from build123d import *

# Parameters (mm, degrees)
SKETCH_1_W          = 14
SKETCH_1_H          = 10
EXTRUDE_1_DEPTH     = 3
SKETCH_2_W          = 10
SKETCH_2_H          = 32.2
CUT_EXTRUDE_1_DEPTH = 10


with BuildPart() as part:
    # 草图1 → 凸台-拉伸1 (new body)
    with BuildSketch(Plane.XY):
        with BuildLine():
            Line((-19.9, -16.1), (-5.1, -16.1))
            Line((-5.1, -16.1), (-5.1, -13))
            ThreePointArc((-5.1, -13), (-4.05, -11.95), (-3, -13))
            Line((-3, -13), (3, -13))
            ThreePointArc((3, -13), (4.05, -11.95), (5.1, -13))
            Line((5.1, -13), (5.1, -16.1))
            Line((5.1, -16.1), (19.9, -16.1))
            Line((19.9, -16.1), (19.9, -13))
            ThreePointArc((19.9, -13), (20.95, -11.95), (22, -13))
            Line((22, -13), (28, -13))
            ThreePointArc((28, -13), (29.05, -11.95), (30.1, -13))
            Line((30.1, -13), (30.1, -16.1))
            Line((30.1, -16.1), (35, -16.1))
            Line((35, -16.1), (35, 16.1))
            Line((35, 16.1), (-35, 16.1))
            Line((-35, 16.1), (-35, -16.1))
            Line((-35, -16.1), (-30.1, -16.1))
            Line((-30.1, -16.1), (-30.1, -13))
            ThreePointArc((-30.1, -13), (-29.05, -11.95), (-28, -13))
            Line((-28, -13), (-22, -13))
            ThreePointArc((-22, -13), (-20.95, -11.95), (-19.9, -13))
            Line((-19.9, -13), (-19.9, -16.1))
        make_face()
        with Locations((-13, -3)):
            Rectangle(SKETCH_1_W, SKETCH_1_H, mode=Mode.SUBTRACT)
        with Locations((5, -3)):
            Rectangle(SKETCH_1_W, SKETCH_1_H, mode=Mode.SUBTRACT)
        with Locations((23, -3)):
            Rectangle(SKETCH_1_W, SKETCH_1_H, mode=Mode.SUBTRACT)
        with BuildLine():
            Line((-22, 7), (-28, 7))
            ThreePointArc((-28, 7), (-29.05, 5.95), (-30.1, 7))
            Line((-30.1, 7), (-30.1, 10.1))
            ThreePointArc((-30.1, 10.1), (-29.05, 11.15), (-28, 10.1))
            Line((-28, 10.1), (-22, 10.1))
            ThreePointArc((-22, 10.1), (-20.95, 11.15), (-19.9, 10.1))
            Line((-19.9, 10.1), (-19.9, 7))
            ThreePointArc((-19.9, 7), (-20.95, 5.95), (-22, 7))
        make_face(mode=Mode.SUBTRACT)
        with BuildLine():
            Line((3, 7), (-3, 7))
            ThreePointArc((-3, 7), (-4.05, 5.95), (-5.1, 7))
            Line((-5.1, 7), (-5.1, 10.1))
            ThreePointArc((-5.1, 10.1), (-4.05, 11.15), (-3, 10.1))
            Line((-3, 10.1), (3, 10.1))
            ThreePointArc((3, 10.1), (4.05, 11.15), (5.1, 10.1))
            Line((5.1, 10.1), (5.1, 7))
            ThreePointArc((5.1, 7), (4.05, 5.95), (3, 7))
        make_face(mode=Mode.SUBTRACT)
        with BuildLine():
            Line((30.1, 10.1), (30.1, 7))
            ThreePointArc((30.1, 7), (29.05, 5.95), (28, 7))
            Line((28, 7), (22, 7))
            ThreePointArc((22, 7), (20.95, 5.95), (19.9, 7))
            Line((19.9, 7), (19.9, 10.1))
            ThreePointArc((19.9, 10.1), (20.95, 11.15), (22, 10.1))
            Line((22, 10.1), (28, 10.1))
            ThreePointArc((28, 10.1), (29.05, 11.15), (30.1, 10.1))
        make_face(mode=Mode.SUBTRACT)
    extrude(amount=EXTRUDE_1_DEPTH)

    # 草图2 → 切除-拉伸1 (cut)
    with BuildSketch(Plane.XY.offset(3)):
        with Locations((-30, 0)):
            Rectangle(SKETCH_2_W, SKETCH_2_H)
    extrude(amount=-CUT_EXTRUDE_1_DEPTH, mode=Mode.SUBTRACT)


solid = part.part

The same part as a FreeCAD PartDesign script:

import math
import FreeCAD as App
import Part
import Sketcher
from FreeCAD import Vector


def add_polygon(sketch, points):
    """Adds a closed chain of lines whose ends are joined by coincident constraints."""
    first, n = sketch.GeometryCount, len(points)
    for a, b in zip(points, points[1:] + points[:1]):
        sketch.addGeometry(Part.LineSegment(App.Vector(*a, 0), App.Vector(*b, 0)), False)
    for i in range(n):
        sketch.addConstraint(Sketcher.Constraint("Coincident", first + i, 2, first + (i + 1) % n, 1))

doc = App.newDocument("Part")
params = doc.addObject("Spreadsheet::Sheet", "Params")
for row, (alias, value) in enumerate([
    ("sketch1_width", "6 mm"),
    ("sketch1_width2", "70 mm"),
    ("sketch1_width3", "14 mm"),
    ("sketch1_height", "10 mm"),
    ("sketch1_radius", "1.05 mm"),
    ("pad1_length", "3 mm"),
    ("sketch2_width", "10 mm"),
    ("sketch2_height", "32.2 mm"),
    ("pocket1_length", "10 mm"),
], start=1):
    params.set(f"A{row}", alias)
    params.set(f"B{row}", "=" + value)
    params.setAlias(f"B{row}", alias)

body = doc.addObject("PartDesign::Body", "Body")

# Sketch on XY plane
sketch1 = doc.addObject("Sketcher::SketchObject", "Sketch")
body.addObject(sketch1)
sketch1.AttachmentSupport = (doc.XY_Plane, [""])
sketch1.MapMode = "FlatFace"
sketch1.addGeometry(Part.LineSegment(Vector(-19.9, -16.1, 0), Vector(-5.1, -16.1, 0)), False)  # 0
sketch1.addGeometry(Part.LineSegment(Vector(-5.1, -16.1, 0), Vector(-5.1, -13, 0)), False)  # 1
sketch1.addGeometry(Part.ArcOfCircle(Part.Circle(Vector(-4, -13, 0), Vector(0, 0, 1), 1.1), math.radians(0), math.radians(180)), False)  # 2
sketch1.addGeometry(Part.LineSegment(Vector(-3, -13, 0), Vector(3, -13, 0)), False)  # 3
sketch1.addGeometry(Part.ArcOfCircle(Part.Circle(Vector(4, -13, 0), Vector(0, 0, 1), 1.1), math.radians(0), math.radians(180)), False)  # 4
sketch1.addGeometry(Part.LineSegment(Vector(5.1, -13, 0), Vector(5.1, -16.1, 0)), False)  # 5
sketch1.addGeometry(Part.LineSegment(Vector(5.1, -16.1, 0), Vector(19.9, -16.1, 0)), False)  # 6
sketch1.addGeometry(Part.LineSegment(Vector(19.9, -16.1, 0), Vector(19.9, -13, 0)), False)  # 7
sketch1.addGeometry(Part.ArcOfCircle(Part.Circle(Vector(20.9, -13, 0), Vector(0, 0, 1), 1.1), math.radians(0), math.radians(180)), False)  # 8
sketch1.addGeometry(Part.LineSegment(Vector(22, -13, 0), Vector(28, -13, 0)), False)  # 9
sketch1.addGeometry(Part.ArcOfCircle(Part.Circle(Vector(29.1, -13, 0), Vector(0, 0, 1), 1.1), math.radians(0), math.radians(180)), False)  # 10
sketch1.addGeometry(Part.LineSegment(Vector(30.1, -13, 0), Vector(30.1, -16.1, 0)), False)  # 11
sketch1.addGeometry(Part.LineSegment(Vector(30.1, -16.1, 0), Vector(35, -16.1, 0)), False)  # 12
sketch1.addGeometry(Part.LineSegment(Vector(35, -16.1, 0), Vector(35, 16.1, 0)), False)  # 13
sketch1.addGeometry(Part.LineSegment(Vector(35, 16.1, 0), Vector(-35, 16.1, 0)), False)  # 14
sketch1.addGeometry(Part.LineSegment(Vector(-35, 16.1, 0), Vector(-35, -16.1, 0)), False)  # 15
sketch1.addGeometry(Part.LineSegment(Vector(-35, -16.1, 0), Vector(-30.1, -16.1, 0)), False)  # 16
sketch1.addGeometry(Part.LineSegment(Vector(-30.1, -16.1, 0), Vector(-30.1, -13, 0)), False)  # 17
sketch1.addGeometry(Part.ArcOfCircle(Part.Circle(Vector(-29.1, -13, 0), Vector(0, 0, 1), 1.1), math.radians(0), math.radians(180)), False)  # 18
sketch1.addGeometry(Part.LineSegment(Vector(-28, -13, 0), Vector(-22, -13, 0)), False)  # 19
sketch1.addGeometry(Part.ArcOfCircle(Part.Circle(Vector(-20.9, -13, 0), Vector(0, 0, 1), 1.1), math.radians(0), math.radians(180)), False)  # 20
sketch1.addGeometry(Part.LineSegment(Vector(-19.9, -13, 0), Vector(-19.9, -16.1, 0)), False)  # 21
add_polygon(sketch1, [(-6, -8), (-20, -8), (-20, 2), (-6, 2)])  # lines 22-25
add_polygon(sketch1, [(12, -8), (-2, -8), (-2, 2), (12, 2)])  # lines 26-29
add_polygon(sketch1, [(30, -8), (16, -8), (16, 2), (30, 2)])  # lines 30-33
sketch1.addGeometry(Part.ArcOfCircle(Part.Circle(Vector(-20.9, 7, 0), Vector(0, 0, 1), 1.1), math.radians(180), math.radians(360)), False)  # 34
sketch1.addGeometry(Part.LineSegment(Vector(-22, 7, 0), Vector(-28, 7, 0)), False)  # 35
sketch1.addGeometry(Part.ArcOfCircle(Part.Circle(Vector(-29.1, 7, 0), Vector(0, 0, 1), 1.1), math.radians(180), math.radians(360)), False)  # 36
sketch1.addGeometry(Part.LineSegment(Vector(-30.1, 7, 0), Vector(-30.1, 10.1, 0)), False)  # 37
sketch1.addGeometry(Part.ArcOfCircle(Part.Circle(Vector(-29.1, 10.1, 0), Vector(0, 0, 1), 1.1), math.radians(0), math.radians(180)), False)  # 38
sketch1.addGeometry(Part.LineSegment(Vector(-28, 10.1, 0), Vector(-22, 10.1, 0)), False)  # 39
sketch1.addGeometry(Part.ArcOfCircle(Part.Circle(Vector(-20.9, 10.1, 0), Vector(0, 0, 1), 1.1), math.radians(0), math.radians(180)), False)  # 40
sketch1.addGeometry(Part.LineSegment(Vector(-19.9, 10.1, 0), Vector(-19.9, 7, 0)), False)  # 41
sketch1.addGeometry(Part.ArcOfCircle(Part.Circle(Vector(4, 7, 0), Vector(0, 0, 1), 1.1), math.radians(180), math.radians(360)), False)  # 42
sketch1.addGeometry(Part.LineSegment(Vector(3, 7, 0), Vector(-3, 7, 0)), False)  # 43
sketch1.addGeometry(Part.ArcOfCircle(Part.Circle(Vector(-4, 7, 0), Vector(0, 0, 1), 1.1), math.radians(180), math.radians(360)), False)  # 44
sketch1.addGeometry(Part.LineSegment(Vector(-5.1, 7, 0), Vector(-5.1, 10.1, 0)), False)  # 45
sketch1.addGeometry(Part.ArcOfCircle(Part.Circle(Vector(-4, 10.1, 0), Vector(0, 0, 1), 1.1), math.radians(0), math.radians(180)), False)  # 46
sketch1.addGeometry(Part.LineSegment(Vector(-3, 10.1, 0), Vector(3, 10.1, 0)), False)  # 47
sketch1.addGeometry(Part.ArcOfCircle(Part.Circle(Vector(4, 10.1, 0), Vector(0, 0, 1), 1.1), math.radians(0), math.radians(180)), False)  # 48
sketch1.addGeometry(Part.LineSegment(Vector(5.1, 10.1, 0), Vector(5.1, 7, 0)), False)  # 49
sketch1.addGeometry(Part.ArcOfCircle(Part.Circle(Vector(29.1, 10.1, 0), Vector(0, 0, 1), 1.1), math.radians(0), math.radians(180)), False)  # 50
sketch1.addGeometry(Part.LineSegment(Vector(30.1, 10.1, 0), Vector(30.1, 7, 0)), False)  # 51
sketch1.addGeometry(Part.ArcOfCircle(Part.Circle(Vector(29.1, 7, 0), Vector(0, 0, 1), 1.1), math.radians(180), math.radians(360)), False)  # 52
sketch1.addGeometry(Part.LineSegment(Vector(28, 7, 0), Vector(22, 7, 0)), False)  # 53
sketch1.addGeometry(Part.ArcOfCircle(Part.Circle(Vector(20.9, 7, 0), Vector(0, 0, 1), 1.1), math.radians(180), math.radians(360)), False)  # 54
sketch1.addGeometry(Part.LineSegment(Vector(19.9, 7, 0), Vector(19.9, 10.1, 0)), False)  # 55
sketch1.addGeometry(Part.ArcOfCircle(Part.Circle(Vector(20.9, 10.1, 0), Vector(0, 0, 1), 1.1), math.radians(0), math.radians(180)), False)  # 56
sketch1.addGeometry(Part.LineSegment(Vector(22, 10.1, 0), Vector(28, 10.1, 0)), False)  # 57
sketch1.addConstraint(Sketcher.Constraint("Coincident", 0, 2, 1, 1))
sketch1.addConstraint(Sketcher.Constraint("Tangent", 1, 2, 2, 2))
sketch1.addConstraint(Sketcher.Constraint("Coincident", 2, 1, 3, 1))
sketch1.addConstraint(Sketcher.Constraint("Coincident", 3, 2, 4, 2))
sketch1.addConstraint(Sketcher.Constraint("Tangent", 4, 1, 5, 1))
sketch1.addConstraint(Sketcher.Constraint("Coincident", 5, 2, 6, 1))
sketch1.addConstraint(Sketcher.Constraint("Coincident", 6, 2, 7, 1))
sketch1.addConstraint(Sketcher.Constraint("Tangent", 7, 2, 8, 2))
sketch1.addConstraint(Sketcher.Constraint("Coincident", 8, 1, 9, 1))
sketch1.addConstraint(Sketcher.Constraint("Coincident", 9, 2, 10, 2))
sketch1.addConstraint(Sketcher.Constraint("Tangent", 10, 1, 11, 1))
sketch1.addConstraint(Sketcher.Constraint("Coincident", 11, 2, 12, 1))
sketch1.addConstraint(Sketcher.Constraint("Coincident", 12, 2, 13, 1))
sketch1.addConstraint(Sketcher.Constraint("Coincident", 13, 2, 14, 1))
sketch1.addConstraint(Sketcher.Constraint("Coincident", 14, 2, 15, 1))
sketch1.addConstraint(Sketcher.Constraint("Coincident", 15, 2, 16, 1))
sketch1.addConstraint(Sketcher.Constraint("Coincident", 16, 2, 17, 1))
sketch1.addConstraint(Sketcher.Constraint("Tangent", 17, 2, 18, 2))
sketch1.addConstraint(Sketcher.Constraint("Coincident", 18, 1, 19, 1))
sketch1.addConstraint(Sketcher.Constraint("Coincident", 19, 2, 20, 2))
sketch1.addConstraint(Sketcher.Constraint("Tangent", 20, 1, 21, 1))
sketch1.addConstraint(Sketcher.Constraint("Coincident", 21, 2, 0, 1))
sketch1.addConstraint(Sketcher.Constraint("Coincident", 34, 1, 35, 1))
sketch1.addConstraint(Sketcher.Constraint("Coincident", 35, 2, 36, 2))
sketch1.addConstraint(Sketcher.Constraint("Tangent", 36, 1, 37, 1))
sketch1.addConstraint(Sketcher.Constraint("Tangent", 37, 2, 38, 2))
sketch1.addConstraint(Sketcher.Constraint("Coincident", 38, 1, 39, 1))
sketch1.addConstraint(Sketcher.Constraint("Coincident", 39, 2, 40, 2))
sketch1.addConstraint(Sketcher.Constraint("Tangent", 40, 1, 41, 1))
sketch1.addConstraint(Sketcher.Constraint("Tangent", 41, 2, 34, 2))
sketch1.addConstraint(Sketcher.Constraint("Coincident", 42, 1, 43, 1))
sketch1.addConstraint(Sketcher.Constraint("Coincident", 43, 2, 44, 2))
sketch1.addConstraint(Sketcher.Constraint("Tangent", 44, 1, 45, 1))
sketch1.addConstraint(Sketcher.Constraint("Tangent", 45, 2, 46, 2))
sketch1.addConstraint(Sketcher.Constraint("Coincident", 46, 1, 47, 1))
sketch1.addConstraint(Sketcher.Constraint("Coincident", 47, 2, 48, 2))
sketch1.addConstraint(Sketcher.Constraint("Tangent", 48, 1, 49, 1))
sketch1.addConstraint(Sketcher.Constraint("Tangent", 49, 2, 42, 2))
sketch1.addConstraint(Sketcher.Constraint("Tangent", 50, 1, 51, 1))
sketch1.addConstraint(Sketcher.Constraint("Tangent", 51, 2, 52, 2))
sketch1.addConstraint(Sketcher.Constraint("Coincident", 52, 1, 53, 1))
sketch1.addConstraint(Sketcher.Constraint("Coincident", 53, 2, 54, 2))
sketch1.addConstraint(Sketcher.Constraint("Tangent", 54, 1, 55, 1))
sketch1.addConstraint(Sketcher.Constraint("Tangent", 55, 2, 56, 2))
sketch1.addConstraint(Sketcher.Constraint("Coincident", 56, 1, 57, 1))
sketch1.addConstraint(Sketcher.Constraint("Coincident", 57, 2, 50, 2))
sketch1.addConstraint(Sketcher.Constraint("Horizontal", 0))
sketch1.addConstraint(Sketcher.Constraint("Vertical", 1))
sketch1.addConstraint(Sketcher.Constraint("Horizontal", 3))
sketch1.addConstraint(Sketcher.Constraint("Vertical", 5))
sketch1.addConstraint(Sketcher.Constraint("Horizontal", 6))
sketch1.addConstraint(Sketcher.Constraint("Vertical", 7))
sketch1.addConstraint(Sketcher.Constraint("Horizontal", 9))
sketch1.addConstraint(Sketcher.Constraint("Vertical", 11))
sketch1.addConstraint(Sketcher.Constraint("Horizontal", 12))
sketch1.addConstraint(Sketcher.Constraint("Vertical", 13))
sketch1.addConstraint(Sketcher.Constraint("Horizontal", 14))
sketch1.addConstraint(Sketcher.Constraint("Vertical", 15))
sketch1.addConstraint(Sketcher.Constraint("Horizontal", 16))
sketch1.addConstraint(Sketcher.Constraint("Vertical", 17))
sketch1.addConstraint(Sketcher.Constraint("Horizontal", 19))
sketch1.addConstraint(Sketcher.Constraint("Vertical", 21))
sketch1.addConstraint(Sketcher.Constraint("Horizontal", 22))
sketch1.addConstraint(Sketcher.Constraint("Vertical", 23))
sketch1.addConstraint(Sketcher.Constraint("Horizontal", 24))
sketch1.addConstraint(Sketcher.Constraint("Vertical", 25))
sketch1.addConstraint(Sketcher.Constraint("Horizontal", 26))
sketch1.addConstraint(Sketcher.Constraint("Vertical", 27))
sketch1.addConstraint(Sketcher.Constraint("Horizontal", 28))
sketch1.addConstraint(Sketcher.Constraint("Vertical", 29))
sketch1.addConstraint(Sketcher.Constraint("Horizontal", 30))
sketch1.addConstraint(Sketcher.Constraint("Vertical", 31))
sketch1.addConstraint(Sketcher.Constraint("Horizontal", 32))
sketch1.addConstraint(Sketcher.Constraint("Vertical", 33))
sketch1.addConstraint(Sketcher.Constraint("Horizontal", 35))
sketch1.addConstraint(Sketcher.Constraint("Vertical", 37))
sketch1.addConstraint(Sketcher.Constraint("Horizontal", 39))
sketch1.addConstraint(Sketcher.Constraint("Vertical", 41))
sketch1.addConstraint(Sketcher.Constraint("Horizontal", 43))
sketch1.addConstraint(Sketcher.Constraint("Vertical", 45))
sketch1.addConstraint(Sketcher.Constraint("Horizontal", 47))
sketch1.addConstraint(Sketcher.Constraint("Vertical", 49))
sketch1.addConstraint(Sketcher.Constraint("Vertical", 51))
sketch1.addConstraint(Sketcher.Constraint("Horizontal", 53))
sketch1.addConstraint(Sketcher.Constraint("Vertical", 55))
sketch1.addConstraint(Sketcher.Constraint("Horizontal", 57))
sketch1.addConstraint(Sketcher.Constraint("Equal", 2, 4))
sketch1.addConstraint(Sketcher.Constraint("Equal", 4, 8))
sketch1.addConstraint(Sketcher.Constraint("Equal", 8, 10))
sketch1.addConstraint(Sketcher.Constraint("Equal", 10, 18))
sketch1.addConstraint(Sketcher.Constraint("Equal", 18, 20))
sketch1.addConstraint(Sketcher.Constraint("Equal", 20, 34))
sketch1.addConstraint(Sketcher.Constraint("Equal", 34, 36))
sketch1.addConstraint(Sketcher.Constraint("Equal", 36, 38))
sketch1.addConstraint(Sketcher.Constraint("Equal", 38, 40))
sketch1.addConstraint(Sketcher.Constraint("Equal", 40, 42))
sketch1.addConstraint(Sketcher.Constraint("Equal", 42, 44))
sketch1.addConstraint(Sketcher.Constraint("Equal", 44, 46))
sketch1.addConstraint(Sketcher.Constraint("Equal", 46, 48))
sketch1.addConstraint(Sketcher.Constraint("Equal", 48, 50))
sketch1.addConstraint(Sketcher.Constraint("Equal", 50, 52))
sketch1.addConstraint(Sketcher.Constraint("Equal", 52, 54))
sketch1.addConstraint(Sketcher.Constraint("Equal", 54, 56))
sketch1.addConstraint(Sketcher.Constraint("Symmetric", 12, 2, 14, 2, -1, 1))
sketch1.addConstraint(Sketcher.Constraint("Symmetric", 2, 3, 4, 3, -2))
sketch1.addConstraint(Sketcher.Constraint("Symmetric", 10, 3, 18, 3, -2))
sketch1.addConstraint(Sketcher.Constraint("Symmetric", 8, 3, 20, 3, -2))
sketch1.addConstraint(Sketcher.Constraint("Symmetric", 42, 3, 44, 3, -2))
sketch1.addConstraint(Sketcher.Constraint("Symmetric", 38, 3, 50, 3, -2))
sketch1.addConstraint(Sketcher.Constraint("Symmetric", 34, 3, 54, 3, -2))
sketch1.addConstraint(Sketcher.Constraint("Horizontal", 4, 3, 8, 3))
sketch1.addConstraint(Sketcher.Constraint("Horizontal", 8, 3, 10, 3))
sketch1.addConstraint(Sketcher.Constraint("Horizontal", 34, 3, 36, 3))
sketch1.addConstraint(Sketcher.Constraint("Horizontal", 38, 3, 40, 3))
sketch1.addConstraint(Sketcher.Constraint("Horizontal", 36, 3, 42, 3))
sketch1.addConstraint(Sketcher.Constraint("Horizontal", 40, 3, 46, 3))
sketch1.addConstraint(Sketcher.Constraint("Horizontal", 46, 3, 48, 3))
sketch1.addConstraint(Sketcher.Constraint("Horizontal", 44, 3, 52, 3))
sketch1.addConstraint(Sketcher.Constraint("Horizontal", 50, 3, 56, 3))
sketch1.addConstraint(Sketcher.Constraint("Horizontal", 1, 2, 2, 1))
sketch1.addConstraint(Sketcher.Constraint("Horizontal", 0, 2, 5, 2))
sketch1.addConstraint(Sketcher.Constraint("Horizontal", 7, 2, 8, 1))
sketch1.addConstraint(Sketcher.Constraint("Horizontal", 6, 2, 11, 2))
sketch1.addConstraint(Sketcher.Constraint("Horizontal", 12, 2, 15, 2))
sketch1.addConstraint(Sketcher.Constraint("Horizontal", 17, 2, 18, 1))
sketch1.addConstraint(Sketcher.Constraint("Horizontal", 25, 2, 26, 2))
sketch1.addConstraint(Sketcher.Constraint("Horizontal", 24, 2, 27, 2))
sketch1.addConstraint(Sketcher.Constraint("Horizontal", 29, 2, 30, 2))
sketch1.addConstraint(Sketcher.Constraint("Horizontal", 28, 2, 31, 2))
sketch1.addConstraint(Sketcher.Constraint("Horizontal", 54, 3, 34, 1))
sketch1.addConstraint(Sketcher.Constraint("Horizontal", 37, 2, 38, 1))
sketch1.addConstraint(Sketcher.Constraint("Horizontal", 41, 2, 42, 1))
sketch1.addConstraint(Sketcher.Constraint("Horizontal", 45, 2, 46, 1))
sketch1.addConstraint(Sketcher.Constraint("Horizontal", 51, 2, 52, 1))
sketch1.addConstraint(Sketcher.Constraint("Horizontal", 55, 2, 56, 1))
sketch1.addConstraint(Sketcher.Constraint("Vertical", 20, 3, 34, 3))
sketch1.addConstraint(Sketcher.Constraint("Vertical", 18, 3, 36, 3))
sketch1.addConstraint(Sketcher.Constraint("Vertical", 4, 3, 42, 3))
sketch1.addConstraint(Sketcher.Constraint("Equal", 3, 9))
sketch1.addConstraint(Sketcher.Constraint("Equal", 24, 26))
sketch1.addConstraint(Sketcher.Constraint("Equal", 28, 30))
sketch1.addConstraint(Sketcher.Constraint("Equal", 21, 37))
sketch1.addConstraint(Sketcher.Constraint("DistanceX", 3, 1, 3, 2, 6.0))
sketch1.addConstraint(Sketcher.Constraint("DistanceX", 14, 2, 14, 1, 70.0))
sketch1.addConstraint(Sketcher.Constraint("DistanceX", 22, 2, 22, 1, 14.0))
sketch1.addConstraint(Sketcher.Constraint("DistanceY", 23, 1, 23, 2, 10.0))
sketch1.addConstraint(Sketcher.Constraint("Radius", 2, 1.05))
sketch1.addConstraint(Sketcher.Constraint("DistanceX", 0, 1, 0, 2, 14.8))
sketch1.addConstraint(Sketcher.Constraint("DistanceY", 1, 1, 1, 2, 3.1))
sketch1.addConstraint(Sketcher.Constraint("DistanceY", 13, 1, 13, 2, 32.2))
sketch1.addConstraint(Sketcher.Constraint("DistanceY", -1, 1, 34, 3, 7.0))
sketch1.addConstraint(Sketcher.Constraint("DistanceX", 22, 2, -1, 1, 20.0))
sketch1.addConstraint(Sketcher.Constraint("DistanceY", 22, 2, -1, 1, 8.0))
sketch1.addConstraint(Sketcher.Constraint("DistanceX", 26, 2, -1, 1, 2.0))
sketch1.addConstraint(Sketcher.Constraint("DistanceX", -1, 1, 30, 2, 16.0))
sketch1.setExpression("Constraints[154]", "Params.sketch1_width")
sketch1.setExpression("Constraints[155]", "Params.sketch1_width2")
sketch1.setExpression("Constraints[156]", "Params.sketch1_width3")
sketch1.setExpression("Constraints[157]", "Params.sketch1_height")
sketch1.setExpression("Constraints[158]", "Params.sketch1_radius")
pad1 = doc.addObject("PartDesign::Pad", "Pad")
body.addObject(pad1)
pad1.Profile = sketch1
pad1.setExpression("Length", "Params.pad1_length")

# Sketch on XY plane
sketch2 = doc.addObject("Sketcher::SketchObject", "Sketch001")
body.addObject(sketch2)
sketch2.AttachmentSupport = (doc.XY_Plane, [""])
sketch2.MapMode = "FlatFace"
sketch2.AttachmentOffset = App.Placement(Vector(0, 0, 3), App.Rotation())
add_polygon(sketch2, [(-35, 16), (-35, -16), (-25, -16), (-25, 16)])  # lines 0-3
sketch2.addConstraint(Sketcher.Constraint("Vertical", 0))
sketch2.addConstraint(Sketcher.Constraint("Horizontal", 1))
sketch2.addConstraint(Sketcher.Constraint("Vertical", 2))
sketch2.addConstraint(Sketcher.Constraint("Horizontal", 3))
sketch2.addConstraint(Sketcher.Constraint("DistanceX", 1, 1, 1, 2, 10.0))
sketch2.addConstraint(Sketcher.Constraint("DistanceY", 0, 2, 0, 1, 32.2))
sketch2.addConstraint(Sketcher.Constraint("DistanceX", 0, 2, -1, 1, 35.0))
sketch2.addConstraint(Sketcher.Constraint("DistanceY", 0, 2, -1, 1, 16.1))
sketch2.setExpression("Constraints[8]", "Params.sketch2_width")
sketch2.setExpression("Constraints[9]", "Params.sketch2_height")
pocket1 = doc.addObject("PartDesign::Pocket", "Pocket")
body.addObject(pocket1)
pocket1.Profile = sketch2
pocket1.setExpression("Length", "Params.pocket1_length")

doc.recompute()
